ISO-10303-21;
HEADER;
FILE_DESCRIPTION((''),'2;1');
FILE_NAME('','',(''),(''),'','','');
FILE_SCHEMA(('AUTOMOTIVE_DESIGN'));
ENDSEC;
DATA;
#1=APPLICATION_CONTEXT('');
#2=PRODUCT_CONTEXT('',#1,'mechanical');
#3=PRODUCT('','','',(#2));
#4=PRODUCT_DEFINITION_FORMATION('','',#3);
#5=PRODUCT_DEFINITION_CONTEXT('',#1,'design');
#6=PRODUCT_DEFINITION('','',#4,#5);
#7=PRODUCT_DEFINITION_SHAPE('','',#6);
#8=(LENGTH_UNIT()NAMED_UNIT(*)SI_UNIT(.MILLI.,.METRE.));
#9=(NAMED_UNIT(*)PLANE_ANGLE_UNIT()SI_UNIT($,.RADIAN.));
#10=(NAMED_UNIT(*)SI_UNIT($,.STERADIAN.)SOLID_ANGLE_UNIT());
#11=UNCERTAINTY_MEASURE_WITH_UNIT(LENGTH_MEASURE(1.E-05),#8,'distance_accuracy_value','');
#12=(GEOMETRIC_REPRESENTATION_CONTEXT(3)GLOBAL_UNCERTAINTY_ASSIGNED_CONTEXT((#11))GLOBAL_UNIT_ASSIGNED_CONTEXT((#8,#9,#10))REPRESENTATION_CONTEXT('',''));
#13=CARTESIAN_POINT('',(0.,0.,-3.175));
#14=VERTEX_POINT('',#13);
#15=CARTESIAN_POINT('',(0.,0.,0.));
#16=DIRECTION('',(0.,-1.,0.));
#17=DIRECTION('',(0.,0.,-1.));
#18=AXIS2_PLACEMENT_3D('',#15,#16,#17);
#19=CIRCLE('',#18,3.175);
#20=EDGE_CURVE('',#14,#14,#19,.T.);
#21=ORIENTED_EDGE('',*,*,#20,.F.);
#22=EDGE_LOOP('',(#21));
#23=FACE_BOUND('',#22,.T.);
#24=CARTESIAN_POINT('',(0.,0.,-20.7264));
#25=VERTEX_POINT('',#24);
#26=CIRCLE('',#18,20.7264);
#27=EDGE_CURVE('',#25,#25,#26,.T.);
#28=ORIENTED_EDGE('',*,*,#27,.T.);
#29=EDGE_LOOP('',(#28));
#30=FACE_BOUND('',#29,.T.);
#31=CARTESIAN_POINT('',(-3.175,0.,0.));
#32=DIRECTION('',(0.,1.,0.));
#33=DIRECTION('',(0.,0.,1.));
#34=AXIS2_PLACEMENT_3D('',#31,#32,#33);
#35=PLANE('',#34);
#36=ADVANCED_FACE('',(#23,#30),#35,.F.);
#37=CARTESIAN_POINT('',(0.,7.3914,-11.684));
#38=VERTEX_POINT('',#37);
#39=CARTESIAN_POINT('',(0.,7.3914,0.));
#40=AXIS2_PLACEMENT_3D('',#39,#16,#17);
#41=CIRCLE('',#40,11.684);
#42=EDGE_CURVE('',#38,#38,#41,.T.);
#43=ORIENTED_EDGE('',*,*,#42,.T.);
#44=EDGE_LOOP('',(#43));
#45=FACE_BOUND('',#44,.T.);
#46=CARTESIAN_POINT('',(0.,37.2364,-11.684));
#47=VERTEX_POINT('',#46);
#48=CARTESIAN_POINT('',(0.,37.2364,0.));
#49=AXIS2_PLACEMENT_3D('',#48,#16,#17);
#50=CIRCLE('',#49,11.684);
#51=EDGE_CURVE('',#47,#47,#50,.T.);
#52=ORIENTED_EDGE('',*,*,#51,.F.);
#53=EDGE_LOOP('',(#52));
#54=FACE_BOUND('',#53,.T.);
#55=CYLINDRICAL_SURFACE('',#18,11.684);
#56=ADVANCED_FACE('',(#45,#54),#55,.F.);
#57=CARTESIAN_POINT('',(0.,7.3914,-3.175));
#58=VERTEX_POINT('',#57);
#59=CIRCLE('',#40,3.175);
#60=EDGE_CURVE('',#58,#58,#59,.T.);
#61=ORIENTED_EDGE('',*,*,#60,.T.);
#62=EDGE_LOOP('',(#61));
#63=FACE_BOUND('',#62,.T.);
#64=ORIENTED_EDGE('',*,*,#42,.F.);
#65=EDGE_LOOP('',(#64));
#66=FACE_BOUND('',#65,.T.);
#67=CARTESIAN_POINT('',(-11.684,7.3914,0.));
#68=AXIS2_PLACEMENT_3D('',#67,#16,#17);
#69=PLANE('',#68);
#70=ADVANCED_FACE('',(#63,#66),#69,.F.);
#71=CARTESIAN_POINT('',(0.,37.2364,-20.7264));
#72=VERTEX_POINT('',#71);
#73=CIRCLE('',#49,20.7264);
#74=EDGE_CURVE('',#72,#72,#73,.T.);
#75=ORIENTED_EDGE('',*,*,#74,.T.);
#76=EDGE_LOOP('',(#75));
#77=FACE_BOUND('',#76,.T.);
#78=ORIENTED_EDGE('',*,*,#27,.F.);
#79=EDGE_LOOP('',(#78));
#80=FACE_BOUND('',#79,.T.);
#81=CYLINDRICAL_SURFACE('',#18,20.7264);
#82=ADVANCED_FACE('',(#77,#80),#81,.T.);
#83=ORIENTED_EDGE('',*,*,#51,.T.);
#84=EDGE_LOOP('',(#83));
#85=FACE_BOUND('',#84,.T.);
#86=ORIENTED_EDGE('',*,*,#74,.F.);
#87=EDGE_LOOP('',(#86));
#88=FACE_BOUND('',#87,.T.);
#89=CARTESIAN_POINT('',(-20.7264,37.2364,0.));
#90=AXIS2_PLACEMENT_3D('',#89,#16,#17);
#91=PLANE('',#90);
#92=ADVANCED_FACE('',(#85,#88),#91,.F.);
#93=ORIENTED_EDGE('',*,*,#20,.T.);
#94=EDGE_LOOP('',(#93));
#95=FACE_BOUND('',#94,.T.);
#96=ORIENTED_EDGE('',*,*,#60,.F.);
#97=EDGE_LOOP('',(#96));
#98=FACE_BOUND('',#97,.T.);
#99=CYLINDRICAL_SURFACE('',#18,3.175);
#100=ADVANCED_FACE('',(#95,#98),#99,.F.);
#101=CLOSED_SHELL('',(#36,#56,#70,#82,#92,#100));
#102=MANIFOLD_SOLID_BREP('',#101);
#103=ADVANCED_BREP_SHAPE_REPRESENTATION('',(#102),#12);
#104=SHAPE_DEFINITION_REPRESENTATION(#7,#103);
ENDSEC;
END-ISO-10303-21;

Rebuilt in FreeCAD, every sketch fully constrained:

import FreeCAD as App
import Part
import Sketcher

V = App.Vector
Q = App.Units.Quantity

doc = App.newDocument("Part")
params = doc.addObject("Spreadsheet::Sheet", "Params")
for row, (alias, value) in enumerate([
    ("sketch1_width", "0.691 in"),
    ("sketch1_width2", "0.335 in"),
    ("sketch1_height", "0.291 in"),
    ("sketch1_height2", "1.175 in"),
    ("revolution_angle", "360 deg"),
], start=1):
    params.set(f"A{row}", alias)
    params.set(f"B{row}", "=" + value)
    params.setAlias(f"B{row}", alias)

body = doc.addObject("PartDesign::Body", "Body")

sketch1 = body.newObject("Sketcher::SketchObject", "Sketch")
sketch1.AttachmentSupport = (doc.getObject("XY_Plane"), [""])
sketch1.MapMode = "FlatFace"
sketch1.addGeometry(Part.LineSegment(V(-21, 0, 0), V(-3, 0, 0)), False)
sketch1.addGeometry(Part.LineSegment(V(-3, 0, 0), V(-3, 7, 0)), False)
sketch1.addGeometry(Part.LineSegment(V(-3, 7, 0), V(-12, 7, 0)), False)
sketch1.addGeometry(Part.LineSegment(V(-12, 7, 0), V(-12, 37, 0)), False)
sketch1.addGeometry(Part.LineSegment(V(-12, 37, 0), V(-21, 37, 0)), False)
sketch1.addGeometry(Part.LineSegment(V(-21, 37, 0), V(-21, 0, 0)), False)
sketch1.addConstraint(Sketcher.Constraint("Coincident", 0, 2, 1, 1))
sketch1.addConstraint(Sketcher.Constraint("Coincident", 1, 2, 2, 1))
sketch1.addConstraint(Sketcher.Constraint("Coincident", 2, 2, 3, 1))
sketch1.addConstraint(Sketcher.Constraint("Coincident", 3, 2, 4, 1))
sketch1.addConstraint(Sketcher.Constraint("Coincident", 4, 2, 5, 1))
sketch1.addConstraint(Sketcher.Constraint("Coincident", 5, 2, 0, 1))
sketch1.addConstraint(Sketcher.Constraint("Horizontal", 0))
sketch1.addConstraint(Sketcher.Constraint("Vertical", 1))
sketch1.addConstraint(Sketcher.Constraint("Horizontal", 2))
sketch1.addConstraint(Sketcher.Constraint("Vertical", 3))
sketch1.addConstraint(Sketcher.Constraint("Horizontal", 4))
sketch1.addConstraint(Sketcher.Constraint("Vertical", 5))
sketch1.addConstraint(Sketcher.Constraint("PointOnObject", 0, 2, -1))
sketch1.addConstraint(Sketcher.Constraint("DistanceX", 0, 1, 0, 2, Q("0.691 in")))
sketch1.addConstraint(Sketcher.Constraint("DistanceX", 2, 2, 2, 1, Q("0.335 in")))
sketch1.addConstraint(Sketcher.Constraint("DistanceY", 1, 1, 1, 2, Q("0.291 in")))
sketch1.addConstraint(Sketcher.Constraint("DistanceY", 3, 1, 3, 2, Q("1.175 in")))
sketch1.addConstraint(Sketcher.Constraint("DistanceX", 2, 2, -1, 1, Q("0.46 in")))
sketch1.setExpression("Constraints[13]", "Params.sketch1_width")
sketch1.setExpression("Constraints[14]", "Params.sketch1_width2")
sketch1.setExpression("Constraints[15]", "Params.sketch1_height")
sketch1.setExpression("Constraints[16]", "Params.sketch1_height2")
revolution = body.newObject("PartDesign::Revolution", "Revolution")
revolution.Profile = sketch1
revolution.ReferenceAxis = (sketch1, ["V_Axis"])
revolution.setExpression("Angle", "Params.revolution_angle")

doc.recompute()
